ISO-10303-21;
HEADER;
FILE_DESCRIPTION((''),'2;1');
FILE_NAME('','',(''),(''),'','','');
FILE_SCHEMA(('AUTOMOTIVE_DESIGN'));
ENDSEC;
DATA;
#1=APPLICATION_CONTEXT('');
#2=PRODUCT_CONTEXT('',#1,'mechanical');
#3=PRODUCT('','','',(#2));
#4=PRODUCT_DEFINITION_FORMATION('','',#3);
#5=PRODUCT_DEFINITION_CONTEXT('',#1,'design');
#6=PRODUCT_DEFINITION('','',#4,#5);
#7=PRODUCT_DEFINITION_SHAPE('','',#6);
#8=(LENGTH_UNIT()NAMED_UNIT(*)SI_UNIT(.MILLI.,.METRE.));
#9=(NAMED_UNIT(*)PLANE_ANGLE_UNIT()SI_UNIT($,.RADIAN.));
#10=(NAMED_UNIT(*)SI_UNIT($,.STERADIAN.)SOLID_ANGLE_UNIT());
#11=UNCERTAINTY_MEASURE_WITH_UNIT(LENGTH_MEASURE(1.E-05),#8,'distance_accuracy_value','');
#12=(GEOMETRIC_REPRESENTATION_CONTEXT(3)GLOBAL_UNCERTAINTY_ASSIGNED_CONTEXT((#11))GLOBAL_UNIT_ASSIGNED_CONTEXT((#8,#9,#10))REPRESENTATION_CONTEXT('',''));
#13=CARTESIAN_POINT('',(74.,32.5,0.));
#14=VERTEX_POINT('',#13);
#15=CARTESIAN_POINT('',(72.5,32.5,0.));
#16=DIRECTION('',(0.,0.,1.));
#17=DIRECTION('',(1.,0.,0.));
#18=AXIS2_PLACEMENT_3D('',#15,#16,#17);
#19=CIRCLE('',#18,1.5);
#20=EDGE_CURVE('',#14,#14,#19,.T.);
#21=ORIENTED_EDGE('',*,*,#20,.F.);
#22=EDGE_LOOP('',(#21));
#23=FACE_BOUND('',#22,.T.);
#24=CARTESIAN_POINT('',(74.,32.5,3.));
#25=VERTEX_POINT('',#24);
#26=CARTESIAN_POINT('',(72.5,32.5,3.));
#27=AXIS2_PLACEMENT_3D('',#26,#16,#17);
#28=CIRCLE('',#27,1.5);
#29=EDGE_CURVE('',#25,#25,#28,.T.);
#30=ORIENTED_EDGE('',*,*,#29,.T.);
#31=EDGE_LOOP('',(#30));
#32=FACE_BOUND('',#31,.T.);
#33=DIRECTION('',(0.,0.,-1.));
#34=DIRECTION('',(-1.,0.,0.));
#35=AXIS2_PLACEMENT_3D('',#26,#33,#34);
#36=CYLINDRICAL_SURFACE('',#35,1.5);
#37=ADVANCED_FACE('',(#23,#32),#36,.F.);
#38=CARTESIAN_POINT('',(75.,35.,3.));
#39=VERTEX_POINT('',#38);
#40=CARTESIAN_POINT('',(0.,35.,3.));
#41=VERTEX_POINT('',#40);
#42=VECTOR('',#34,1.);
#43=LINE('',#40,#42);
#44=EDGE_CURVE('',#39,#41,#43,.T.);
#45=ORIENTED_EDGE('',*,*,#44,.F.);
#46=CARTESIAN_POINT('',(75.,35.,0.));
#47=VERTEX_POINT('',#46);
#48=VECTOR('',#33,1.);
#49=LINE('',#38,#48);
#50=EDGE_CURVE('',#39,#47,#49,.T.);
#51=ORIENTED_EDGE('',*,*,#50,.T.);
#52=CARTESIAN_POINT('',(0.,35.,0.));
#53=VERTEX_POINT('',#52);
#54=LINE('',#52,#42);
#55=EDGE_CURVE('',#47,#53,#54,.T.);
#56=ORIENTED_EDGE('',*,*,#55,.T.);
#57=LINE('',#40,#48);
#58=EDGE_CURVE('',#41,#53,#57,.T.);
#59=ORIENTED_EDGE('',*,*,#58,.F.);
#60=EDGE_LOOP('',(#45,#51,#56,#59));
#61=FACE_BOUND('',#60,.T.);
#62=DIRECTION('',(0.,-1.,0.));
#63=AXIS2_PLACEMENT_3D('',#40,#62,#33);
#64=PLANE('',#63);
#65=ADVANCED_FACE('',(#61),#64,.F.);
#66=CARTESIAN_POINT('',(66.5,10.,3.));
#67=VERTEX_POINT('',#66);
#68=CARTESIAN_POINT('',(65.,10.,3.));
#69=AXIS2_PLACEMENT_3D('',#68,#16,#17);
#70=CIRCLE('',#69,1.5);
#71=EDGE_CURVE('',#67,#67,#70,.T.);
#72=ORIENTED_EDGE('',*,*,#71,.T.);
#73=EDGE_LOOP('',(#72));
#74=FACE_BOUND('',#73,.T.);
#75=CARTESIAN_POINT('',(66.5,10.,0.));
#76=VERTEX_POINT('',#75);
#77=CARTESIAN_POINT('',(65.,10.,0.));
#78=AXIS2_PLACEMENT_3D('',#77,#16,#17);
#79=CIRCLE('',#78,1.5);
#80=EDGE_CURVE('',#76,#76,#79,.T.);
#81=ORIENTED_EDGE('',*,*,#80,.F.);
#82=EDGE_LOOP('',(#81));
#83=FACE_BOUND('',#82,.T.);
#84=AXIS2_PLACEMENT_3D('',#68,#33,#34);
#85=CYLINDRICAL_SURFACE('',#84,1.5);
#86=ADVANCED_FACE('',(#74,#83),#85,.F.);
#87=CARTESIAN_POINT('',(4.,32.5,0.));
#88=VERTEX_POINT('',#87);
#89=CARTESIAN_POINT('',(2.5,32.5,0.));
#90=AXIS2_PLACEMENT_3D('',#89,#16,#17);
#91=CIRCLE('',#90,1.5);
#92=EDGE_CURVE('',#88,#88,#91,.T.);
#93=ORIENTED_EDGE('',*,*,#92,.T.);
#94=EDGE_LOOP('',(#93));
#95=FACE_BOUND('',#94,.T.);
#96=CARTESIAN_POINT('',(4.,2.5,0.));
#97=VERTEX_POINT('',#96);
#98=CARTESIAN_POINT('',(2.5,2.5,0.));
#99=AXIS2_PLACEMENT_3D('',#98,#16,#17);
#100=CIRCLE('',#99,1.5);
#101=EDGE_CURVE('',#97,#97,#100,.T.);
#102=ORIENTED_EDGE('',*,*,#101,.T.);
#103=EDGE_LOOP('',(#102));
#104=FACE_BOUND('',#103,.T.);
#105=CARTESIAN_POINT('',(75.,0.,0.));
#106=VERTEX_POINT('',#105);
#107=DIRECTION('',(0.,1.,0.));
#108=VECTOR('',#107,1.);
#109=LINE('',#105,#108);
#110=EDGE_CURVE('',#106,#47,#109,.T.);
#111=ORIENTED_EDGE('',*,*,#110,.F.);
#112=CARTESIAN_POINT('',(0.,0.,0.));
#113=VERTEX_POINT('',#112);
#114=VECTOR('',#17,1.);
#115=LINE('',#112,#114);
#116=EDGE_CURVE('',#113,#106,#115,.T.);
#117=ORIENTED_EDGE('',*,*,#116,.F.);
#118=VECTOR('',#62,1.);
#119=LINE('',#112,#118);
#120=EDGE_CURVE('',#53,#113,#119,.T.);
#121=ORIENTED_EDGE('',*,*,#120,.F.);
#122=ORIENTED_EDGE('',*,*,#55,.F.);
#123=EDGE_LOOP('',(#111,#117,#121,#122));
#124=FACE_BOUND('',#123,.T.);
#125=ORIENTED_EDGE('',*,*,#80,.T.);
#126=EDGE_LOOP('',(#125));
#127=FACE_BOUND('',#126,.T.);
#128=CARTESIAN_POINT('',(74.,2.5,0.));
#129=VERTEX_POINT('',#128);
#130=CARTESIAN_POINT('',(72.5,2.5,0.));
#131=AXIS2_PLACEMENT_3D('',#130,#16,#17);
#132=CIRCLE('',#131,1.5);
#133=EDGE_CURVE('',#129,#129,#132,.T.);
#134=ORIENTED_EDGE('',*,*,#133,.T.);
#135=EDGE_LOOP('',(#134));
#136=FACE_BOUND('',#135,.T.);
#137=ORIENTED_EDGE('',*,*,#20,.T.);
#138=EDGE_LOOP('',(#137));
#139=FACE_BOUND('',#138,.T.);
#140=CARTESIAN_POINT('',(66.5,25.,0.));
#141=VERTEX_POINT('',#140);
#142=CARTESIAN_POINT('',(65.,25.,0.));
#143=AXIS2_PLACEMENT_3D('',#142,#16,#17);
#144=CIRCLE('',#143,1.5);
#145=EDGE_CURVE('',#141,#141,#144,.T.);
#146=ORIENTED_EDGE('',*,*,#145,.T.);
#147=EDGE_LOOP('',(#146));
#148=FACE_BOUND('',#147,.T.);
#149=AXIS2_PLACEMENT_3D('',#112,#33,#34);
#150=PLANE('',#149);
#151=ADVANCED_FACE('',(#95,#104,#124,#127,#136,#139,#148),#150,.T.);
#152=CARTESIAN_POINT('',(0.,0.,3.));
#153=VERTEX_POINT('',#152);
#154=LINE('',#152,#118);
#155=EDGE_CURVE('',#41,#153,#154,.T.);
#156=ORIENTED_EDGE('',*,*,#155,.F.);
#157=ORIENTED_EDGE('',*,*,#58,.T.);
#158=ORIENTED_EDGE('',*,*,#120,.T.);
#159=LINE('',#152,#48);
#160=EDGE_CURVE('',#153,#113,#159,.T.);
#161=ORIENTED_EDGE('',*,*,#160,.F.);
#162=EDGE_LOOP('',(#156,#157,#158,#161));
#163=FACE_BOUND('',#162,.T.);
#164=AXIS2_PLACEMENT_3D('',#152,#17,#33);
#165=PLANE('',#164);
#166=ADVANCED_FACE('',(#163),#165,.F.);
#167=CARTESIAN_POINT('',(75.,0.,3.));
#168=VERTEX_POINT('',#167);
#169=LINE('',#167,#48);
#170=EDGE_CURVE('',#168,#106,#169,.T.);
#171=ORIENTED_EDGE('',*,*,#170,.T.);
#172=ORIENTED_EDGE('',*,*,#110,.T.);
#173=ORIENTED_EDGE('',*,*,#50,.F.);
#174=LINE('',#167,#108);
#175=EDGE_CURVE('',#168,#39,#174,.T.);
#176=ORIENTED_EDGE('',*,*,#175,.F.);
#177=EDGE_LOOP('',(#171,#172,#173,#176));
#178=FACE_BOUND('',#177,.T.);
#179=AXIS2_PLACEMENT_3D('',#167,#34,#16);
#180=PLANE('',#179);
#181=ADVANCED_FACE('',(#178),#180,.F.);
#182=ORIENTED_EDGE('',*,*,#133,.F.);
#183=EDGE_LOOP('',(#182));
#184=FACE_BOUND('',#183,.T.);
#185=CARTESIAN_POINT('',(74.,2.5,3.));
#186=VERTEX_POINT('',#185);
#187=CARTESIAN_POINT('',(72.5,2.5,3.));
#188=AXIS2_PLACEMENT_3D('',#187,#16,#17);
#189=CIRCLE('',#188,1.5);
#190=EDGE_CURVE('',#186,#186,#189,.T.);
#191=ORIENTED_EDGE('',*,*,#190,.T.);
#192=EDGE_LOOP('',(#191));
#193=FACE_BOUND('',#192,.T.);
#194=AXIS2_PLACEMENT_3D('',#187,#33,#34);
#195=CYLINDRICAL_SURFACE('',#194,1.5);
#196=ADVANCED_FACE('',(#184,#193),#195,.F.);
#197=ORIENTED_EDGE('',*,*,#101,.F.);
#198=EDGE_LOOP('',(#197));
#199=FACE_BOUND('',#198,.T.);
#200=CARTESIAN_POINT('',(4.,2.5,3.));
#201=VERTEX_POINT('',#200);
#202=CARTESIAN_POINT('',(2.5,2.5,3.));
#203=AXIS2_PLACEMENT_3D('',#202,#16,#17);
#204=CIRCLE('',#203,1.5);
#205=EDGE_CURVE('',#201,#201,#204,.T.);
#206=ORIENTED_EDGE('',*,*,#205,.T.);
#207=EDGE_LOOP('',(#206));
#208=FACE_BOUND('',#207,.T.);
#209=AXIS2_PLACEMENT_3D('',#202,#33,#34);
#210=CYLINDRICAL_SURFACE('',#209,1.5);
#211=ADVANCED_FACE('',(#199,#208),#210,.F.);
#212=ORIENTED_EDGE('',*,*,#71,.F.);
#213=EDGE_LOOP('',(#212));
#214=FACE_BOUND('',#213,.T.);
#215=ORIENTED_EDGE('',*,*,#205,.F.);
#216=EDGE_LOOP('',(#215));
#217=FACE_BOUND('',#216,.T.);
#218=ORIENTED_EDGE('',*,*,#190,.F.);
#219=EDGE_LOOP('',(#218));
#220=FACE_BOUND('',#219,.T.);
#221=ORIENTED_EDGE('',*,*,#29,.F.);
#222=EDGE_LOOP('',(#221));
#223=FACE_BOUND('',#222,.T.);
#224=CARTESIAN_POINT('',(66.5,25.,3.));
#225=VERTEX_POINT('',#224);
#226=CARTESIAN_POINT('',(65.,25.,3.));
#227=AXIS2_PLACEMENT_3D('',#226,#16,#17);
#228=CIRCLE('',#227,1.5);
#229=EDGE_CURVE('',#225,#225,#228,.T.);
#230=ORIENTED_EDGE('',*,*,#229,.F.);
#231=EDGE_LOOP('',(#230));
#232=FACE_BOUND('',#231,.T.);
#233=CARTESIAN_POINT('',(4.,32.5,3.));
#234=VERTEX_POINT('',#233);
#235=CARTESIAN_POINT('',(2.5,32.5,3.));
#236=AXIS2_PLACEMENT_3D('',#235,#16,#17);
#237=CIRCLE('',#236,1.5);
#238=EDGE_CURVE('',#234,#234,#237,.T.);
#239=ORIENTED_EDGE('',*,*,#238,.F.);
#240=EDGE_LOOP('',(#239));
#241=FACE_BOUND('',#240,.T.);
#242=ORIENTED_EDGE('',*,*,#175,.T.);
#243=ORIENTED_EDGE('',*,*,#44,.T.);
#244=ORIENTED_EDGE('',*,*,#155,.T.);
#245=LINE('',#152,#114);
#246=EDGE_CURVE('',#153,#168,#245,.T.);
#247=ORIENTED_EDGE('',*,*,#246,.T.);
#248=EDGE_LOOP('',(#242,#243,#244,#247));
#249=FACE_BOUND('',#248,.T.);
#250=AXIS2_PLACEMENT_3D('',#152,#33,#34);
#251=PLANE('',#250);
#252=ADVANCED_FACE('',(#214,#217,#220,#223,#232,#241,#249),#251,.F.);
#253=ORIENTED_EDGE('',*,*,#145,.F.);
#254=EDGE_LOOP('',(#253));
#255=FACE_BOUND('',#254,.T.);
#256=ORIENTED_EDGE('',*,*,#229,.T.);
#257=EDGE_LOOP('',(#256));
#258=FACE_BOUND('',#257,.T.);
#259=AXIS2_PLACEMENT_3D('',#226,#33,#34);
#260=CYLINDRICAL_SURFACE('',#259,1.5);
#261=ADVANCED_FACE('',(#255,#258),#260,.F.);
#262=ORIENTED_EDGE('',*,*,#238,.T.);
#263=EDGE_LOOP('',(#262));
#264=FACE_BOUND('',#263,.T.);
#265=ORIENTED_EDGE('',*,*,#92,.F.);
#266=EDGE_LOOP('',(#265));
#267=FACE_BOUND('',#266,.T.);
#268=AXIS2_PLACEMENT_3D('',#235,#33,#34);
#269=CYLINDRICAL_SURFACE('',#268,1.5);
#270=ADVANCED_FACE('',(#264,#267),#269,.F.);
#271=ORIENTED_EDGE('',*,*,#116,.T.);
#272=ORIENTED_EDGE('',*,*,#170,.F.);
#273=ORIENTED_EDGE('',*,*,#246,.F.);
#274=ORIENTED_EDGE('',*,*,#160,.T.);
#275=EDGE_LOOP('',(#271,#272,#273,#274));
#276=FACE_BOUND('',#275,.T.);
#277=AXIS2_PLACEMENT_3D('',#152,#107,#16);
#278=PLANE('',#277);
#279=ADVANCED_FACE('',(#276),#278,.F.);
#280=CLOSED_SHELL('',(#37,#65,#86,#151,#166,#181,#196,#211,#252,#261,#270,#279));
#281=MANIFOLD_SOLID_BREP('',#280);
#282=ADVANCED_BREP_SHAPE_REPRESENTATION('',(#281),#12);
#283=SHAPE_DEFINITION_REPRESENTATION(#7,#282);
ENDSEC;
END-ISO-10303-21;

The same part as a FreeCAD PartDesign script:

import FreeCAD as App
import Part
import Sketcher
Q = App.Units.Quantity

doc = App.newDocument("Part")
body = doc.addObject("PartDesign::Body", "Body")

sketch1 = doc.addObject("Sketcher::SketchObject", "Sketch")
body.addObject(sketch1)
sketch1.AttachmentSupport = (doc.XY_Plane, [""])
sketch1.MapMode = "FlatFace"
sketch1.addGeometry(Part.LineSegment(App.Vector(0, 35, 0), App.Vector(0, 0, 0)), False)
sketch1.addGeometry(Part.LineSegment(App.Vector(0, 0, 0), App.Vector(75, 0, 0)), False)
sketch1.addGeometry(Part.LineSegment(App.Vector(75, 0, 0), App.Vector(75, 35, 0)), False)
sketch1.addGeometry(Part.LineSegment(App.Vector(75, 35, 0), App.Vector(0, 35, 0)), False)
sketch1.addGeometry(Part.Circle(App.Vector(2.5, 2.5, 0), App.Vector(0, 0, 1), 1.5), False)
sketch1.addGeometry(Part.Circle(App.Vector(72.5, 2.5, 0), App.Vector(0, 0, 1), 1.5), False)
sketch1.addGeometry(Part.Circle(App.Vector(65, 10, 0), App.Vector(0, 0, 1), 1.5), False)
sketch1.addGeometry(Part.Circle(App.Vector(2.5, 32.5, 0), App.Vector(0, 0, 1), 1.5), False)
sketch1.addGeometry(Part.Circle(App.Vector(65, 25, 0), App.Vector(0, 0, 1), 1.5), False)
sketch1.addGeometry(Part.Circle(App.Vector(72.5, 32.5, 0), App.Vector(0, 0, 1), 1.5), False)
sketch1.addConstraint(Sketcher.Constraint("Coincident", 0, 2, 1, 1))
sketch1.addConstraint(Sketcher.Constraint("Coincident", 1, 2, 2, 1))
sketch1.addConstraint(Sketcher.Constraint("Coincident", 2, 2, 3, 1))
sketch1.addConstraint(Sketcher.Constraint("Coincident", 3, 2, 0, 1))
sketch1.addConstraint(Sketcher.Constraint("Vertical", 0))
sketch1.addConstraint(Sketcher.Constraint("Horizontal", 1))
sketch1.addConstraint(Sketcher.Constraint("Vertical", 2))
sketch1.addConstraint(Sketcher.Constraint("Horizontal", 3))
sketch1.addConstraint(Sketcher.Constraint("Coincident", 0, 2, -1, 1))
sketch1.addConstraint(Sketcher.Constraint("Equal", 4, 5))
sketch1.addConstraint(Sketcher.Constraint("Equal", 5, 6))
sketch1.addConstraint(Sketcher.Constraint("Equal", 6, 7))
sketch1.addConstraint(Sketcher.Constraint("Equal", 7, 8))
sketch1.addConstraint(Sketcher.Constraint("Equal", 8, 9))
sketch1.addConstraint(Sketcher.Constraint("Horizontal", 4, 3, 5, 3))
sketch1.addConstraint(Sketcher.Constraint("Horizontal", 7, 3, 9, 3))
sketch1.addConstraint(Sketcher.Constraint("Vertical", 4, 3, 7, 3))
sketch1.addConstraint(Sketcher.Constraint("Vertical", 6, 3, 8, 3))
sketch1.addConstraint(Sketcher.Constraint("Vertical", 5, 3, 9, 3))
sketch1.addConstraint(Sketcher.Constraint("Diameter", 4, Q("3 mm")))
sketch1.addConstraint(Sketcher.Constraint("DistanceX", 1, 1, 1, 2, Q("75 mm")))
sketch1.addConstraint(Sketcher.Constraint("DistanceY", 0, 2, 0, 1, Q("35 mm")))
sketch1.addConstraint(Sketcher.Constraint("DistanceX", -1, 1, 6, 3, Q("65 mm")))
sketch1.addConstraint(Sketcher.Constraint("DistanceY", -1, 1, 6, 3, Q("10 mm")))
sketch1.addConstraint(Sketcher.Constraint("DistanceY", -1, 1, 8, 3, Q("25 mm")))
sketch1.addConstraint(Sketcher.Constraint("DistanceX", 4, 3, 5, 3, Q("70 mm")))
sketch1.addConstraint(Sketcher.Constraint("DistanceY", 4, 3, 7, 3, Q("30 mm")))
sketch1.addConstraint(Sketcher.Constraint("DistanceX", -1, 1, 4, 3, Q("2.5 mm")))
sketch1.addConstraint(Sketcher.Constraint("DistanceY", -1, 1, 4, 3, Q("2.5 mm")))
pad1 = doc.addObject("PartDesign::Pad", "Pad")
body.addObject(pad1)
pad1.Profile = sketch1
pad1.Length = 3

doc.recompute()
